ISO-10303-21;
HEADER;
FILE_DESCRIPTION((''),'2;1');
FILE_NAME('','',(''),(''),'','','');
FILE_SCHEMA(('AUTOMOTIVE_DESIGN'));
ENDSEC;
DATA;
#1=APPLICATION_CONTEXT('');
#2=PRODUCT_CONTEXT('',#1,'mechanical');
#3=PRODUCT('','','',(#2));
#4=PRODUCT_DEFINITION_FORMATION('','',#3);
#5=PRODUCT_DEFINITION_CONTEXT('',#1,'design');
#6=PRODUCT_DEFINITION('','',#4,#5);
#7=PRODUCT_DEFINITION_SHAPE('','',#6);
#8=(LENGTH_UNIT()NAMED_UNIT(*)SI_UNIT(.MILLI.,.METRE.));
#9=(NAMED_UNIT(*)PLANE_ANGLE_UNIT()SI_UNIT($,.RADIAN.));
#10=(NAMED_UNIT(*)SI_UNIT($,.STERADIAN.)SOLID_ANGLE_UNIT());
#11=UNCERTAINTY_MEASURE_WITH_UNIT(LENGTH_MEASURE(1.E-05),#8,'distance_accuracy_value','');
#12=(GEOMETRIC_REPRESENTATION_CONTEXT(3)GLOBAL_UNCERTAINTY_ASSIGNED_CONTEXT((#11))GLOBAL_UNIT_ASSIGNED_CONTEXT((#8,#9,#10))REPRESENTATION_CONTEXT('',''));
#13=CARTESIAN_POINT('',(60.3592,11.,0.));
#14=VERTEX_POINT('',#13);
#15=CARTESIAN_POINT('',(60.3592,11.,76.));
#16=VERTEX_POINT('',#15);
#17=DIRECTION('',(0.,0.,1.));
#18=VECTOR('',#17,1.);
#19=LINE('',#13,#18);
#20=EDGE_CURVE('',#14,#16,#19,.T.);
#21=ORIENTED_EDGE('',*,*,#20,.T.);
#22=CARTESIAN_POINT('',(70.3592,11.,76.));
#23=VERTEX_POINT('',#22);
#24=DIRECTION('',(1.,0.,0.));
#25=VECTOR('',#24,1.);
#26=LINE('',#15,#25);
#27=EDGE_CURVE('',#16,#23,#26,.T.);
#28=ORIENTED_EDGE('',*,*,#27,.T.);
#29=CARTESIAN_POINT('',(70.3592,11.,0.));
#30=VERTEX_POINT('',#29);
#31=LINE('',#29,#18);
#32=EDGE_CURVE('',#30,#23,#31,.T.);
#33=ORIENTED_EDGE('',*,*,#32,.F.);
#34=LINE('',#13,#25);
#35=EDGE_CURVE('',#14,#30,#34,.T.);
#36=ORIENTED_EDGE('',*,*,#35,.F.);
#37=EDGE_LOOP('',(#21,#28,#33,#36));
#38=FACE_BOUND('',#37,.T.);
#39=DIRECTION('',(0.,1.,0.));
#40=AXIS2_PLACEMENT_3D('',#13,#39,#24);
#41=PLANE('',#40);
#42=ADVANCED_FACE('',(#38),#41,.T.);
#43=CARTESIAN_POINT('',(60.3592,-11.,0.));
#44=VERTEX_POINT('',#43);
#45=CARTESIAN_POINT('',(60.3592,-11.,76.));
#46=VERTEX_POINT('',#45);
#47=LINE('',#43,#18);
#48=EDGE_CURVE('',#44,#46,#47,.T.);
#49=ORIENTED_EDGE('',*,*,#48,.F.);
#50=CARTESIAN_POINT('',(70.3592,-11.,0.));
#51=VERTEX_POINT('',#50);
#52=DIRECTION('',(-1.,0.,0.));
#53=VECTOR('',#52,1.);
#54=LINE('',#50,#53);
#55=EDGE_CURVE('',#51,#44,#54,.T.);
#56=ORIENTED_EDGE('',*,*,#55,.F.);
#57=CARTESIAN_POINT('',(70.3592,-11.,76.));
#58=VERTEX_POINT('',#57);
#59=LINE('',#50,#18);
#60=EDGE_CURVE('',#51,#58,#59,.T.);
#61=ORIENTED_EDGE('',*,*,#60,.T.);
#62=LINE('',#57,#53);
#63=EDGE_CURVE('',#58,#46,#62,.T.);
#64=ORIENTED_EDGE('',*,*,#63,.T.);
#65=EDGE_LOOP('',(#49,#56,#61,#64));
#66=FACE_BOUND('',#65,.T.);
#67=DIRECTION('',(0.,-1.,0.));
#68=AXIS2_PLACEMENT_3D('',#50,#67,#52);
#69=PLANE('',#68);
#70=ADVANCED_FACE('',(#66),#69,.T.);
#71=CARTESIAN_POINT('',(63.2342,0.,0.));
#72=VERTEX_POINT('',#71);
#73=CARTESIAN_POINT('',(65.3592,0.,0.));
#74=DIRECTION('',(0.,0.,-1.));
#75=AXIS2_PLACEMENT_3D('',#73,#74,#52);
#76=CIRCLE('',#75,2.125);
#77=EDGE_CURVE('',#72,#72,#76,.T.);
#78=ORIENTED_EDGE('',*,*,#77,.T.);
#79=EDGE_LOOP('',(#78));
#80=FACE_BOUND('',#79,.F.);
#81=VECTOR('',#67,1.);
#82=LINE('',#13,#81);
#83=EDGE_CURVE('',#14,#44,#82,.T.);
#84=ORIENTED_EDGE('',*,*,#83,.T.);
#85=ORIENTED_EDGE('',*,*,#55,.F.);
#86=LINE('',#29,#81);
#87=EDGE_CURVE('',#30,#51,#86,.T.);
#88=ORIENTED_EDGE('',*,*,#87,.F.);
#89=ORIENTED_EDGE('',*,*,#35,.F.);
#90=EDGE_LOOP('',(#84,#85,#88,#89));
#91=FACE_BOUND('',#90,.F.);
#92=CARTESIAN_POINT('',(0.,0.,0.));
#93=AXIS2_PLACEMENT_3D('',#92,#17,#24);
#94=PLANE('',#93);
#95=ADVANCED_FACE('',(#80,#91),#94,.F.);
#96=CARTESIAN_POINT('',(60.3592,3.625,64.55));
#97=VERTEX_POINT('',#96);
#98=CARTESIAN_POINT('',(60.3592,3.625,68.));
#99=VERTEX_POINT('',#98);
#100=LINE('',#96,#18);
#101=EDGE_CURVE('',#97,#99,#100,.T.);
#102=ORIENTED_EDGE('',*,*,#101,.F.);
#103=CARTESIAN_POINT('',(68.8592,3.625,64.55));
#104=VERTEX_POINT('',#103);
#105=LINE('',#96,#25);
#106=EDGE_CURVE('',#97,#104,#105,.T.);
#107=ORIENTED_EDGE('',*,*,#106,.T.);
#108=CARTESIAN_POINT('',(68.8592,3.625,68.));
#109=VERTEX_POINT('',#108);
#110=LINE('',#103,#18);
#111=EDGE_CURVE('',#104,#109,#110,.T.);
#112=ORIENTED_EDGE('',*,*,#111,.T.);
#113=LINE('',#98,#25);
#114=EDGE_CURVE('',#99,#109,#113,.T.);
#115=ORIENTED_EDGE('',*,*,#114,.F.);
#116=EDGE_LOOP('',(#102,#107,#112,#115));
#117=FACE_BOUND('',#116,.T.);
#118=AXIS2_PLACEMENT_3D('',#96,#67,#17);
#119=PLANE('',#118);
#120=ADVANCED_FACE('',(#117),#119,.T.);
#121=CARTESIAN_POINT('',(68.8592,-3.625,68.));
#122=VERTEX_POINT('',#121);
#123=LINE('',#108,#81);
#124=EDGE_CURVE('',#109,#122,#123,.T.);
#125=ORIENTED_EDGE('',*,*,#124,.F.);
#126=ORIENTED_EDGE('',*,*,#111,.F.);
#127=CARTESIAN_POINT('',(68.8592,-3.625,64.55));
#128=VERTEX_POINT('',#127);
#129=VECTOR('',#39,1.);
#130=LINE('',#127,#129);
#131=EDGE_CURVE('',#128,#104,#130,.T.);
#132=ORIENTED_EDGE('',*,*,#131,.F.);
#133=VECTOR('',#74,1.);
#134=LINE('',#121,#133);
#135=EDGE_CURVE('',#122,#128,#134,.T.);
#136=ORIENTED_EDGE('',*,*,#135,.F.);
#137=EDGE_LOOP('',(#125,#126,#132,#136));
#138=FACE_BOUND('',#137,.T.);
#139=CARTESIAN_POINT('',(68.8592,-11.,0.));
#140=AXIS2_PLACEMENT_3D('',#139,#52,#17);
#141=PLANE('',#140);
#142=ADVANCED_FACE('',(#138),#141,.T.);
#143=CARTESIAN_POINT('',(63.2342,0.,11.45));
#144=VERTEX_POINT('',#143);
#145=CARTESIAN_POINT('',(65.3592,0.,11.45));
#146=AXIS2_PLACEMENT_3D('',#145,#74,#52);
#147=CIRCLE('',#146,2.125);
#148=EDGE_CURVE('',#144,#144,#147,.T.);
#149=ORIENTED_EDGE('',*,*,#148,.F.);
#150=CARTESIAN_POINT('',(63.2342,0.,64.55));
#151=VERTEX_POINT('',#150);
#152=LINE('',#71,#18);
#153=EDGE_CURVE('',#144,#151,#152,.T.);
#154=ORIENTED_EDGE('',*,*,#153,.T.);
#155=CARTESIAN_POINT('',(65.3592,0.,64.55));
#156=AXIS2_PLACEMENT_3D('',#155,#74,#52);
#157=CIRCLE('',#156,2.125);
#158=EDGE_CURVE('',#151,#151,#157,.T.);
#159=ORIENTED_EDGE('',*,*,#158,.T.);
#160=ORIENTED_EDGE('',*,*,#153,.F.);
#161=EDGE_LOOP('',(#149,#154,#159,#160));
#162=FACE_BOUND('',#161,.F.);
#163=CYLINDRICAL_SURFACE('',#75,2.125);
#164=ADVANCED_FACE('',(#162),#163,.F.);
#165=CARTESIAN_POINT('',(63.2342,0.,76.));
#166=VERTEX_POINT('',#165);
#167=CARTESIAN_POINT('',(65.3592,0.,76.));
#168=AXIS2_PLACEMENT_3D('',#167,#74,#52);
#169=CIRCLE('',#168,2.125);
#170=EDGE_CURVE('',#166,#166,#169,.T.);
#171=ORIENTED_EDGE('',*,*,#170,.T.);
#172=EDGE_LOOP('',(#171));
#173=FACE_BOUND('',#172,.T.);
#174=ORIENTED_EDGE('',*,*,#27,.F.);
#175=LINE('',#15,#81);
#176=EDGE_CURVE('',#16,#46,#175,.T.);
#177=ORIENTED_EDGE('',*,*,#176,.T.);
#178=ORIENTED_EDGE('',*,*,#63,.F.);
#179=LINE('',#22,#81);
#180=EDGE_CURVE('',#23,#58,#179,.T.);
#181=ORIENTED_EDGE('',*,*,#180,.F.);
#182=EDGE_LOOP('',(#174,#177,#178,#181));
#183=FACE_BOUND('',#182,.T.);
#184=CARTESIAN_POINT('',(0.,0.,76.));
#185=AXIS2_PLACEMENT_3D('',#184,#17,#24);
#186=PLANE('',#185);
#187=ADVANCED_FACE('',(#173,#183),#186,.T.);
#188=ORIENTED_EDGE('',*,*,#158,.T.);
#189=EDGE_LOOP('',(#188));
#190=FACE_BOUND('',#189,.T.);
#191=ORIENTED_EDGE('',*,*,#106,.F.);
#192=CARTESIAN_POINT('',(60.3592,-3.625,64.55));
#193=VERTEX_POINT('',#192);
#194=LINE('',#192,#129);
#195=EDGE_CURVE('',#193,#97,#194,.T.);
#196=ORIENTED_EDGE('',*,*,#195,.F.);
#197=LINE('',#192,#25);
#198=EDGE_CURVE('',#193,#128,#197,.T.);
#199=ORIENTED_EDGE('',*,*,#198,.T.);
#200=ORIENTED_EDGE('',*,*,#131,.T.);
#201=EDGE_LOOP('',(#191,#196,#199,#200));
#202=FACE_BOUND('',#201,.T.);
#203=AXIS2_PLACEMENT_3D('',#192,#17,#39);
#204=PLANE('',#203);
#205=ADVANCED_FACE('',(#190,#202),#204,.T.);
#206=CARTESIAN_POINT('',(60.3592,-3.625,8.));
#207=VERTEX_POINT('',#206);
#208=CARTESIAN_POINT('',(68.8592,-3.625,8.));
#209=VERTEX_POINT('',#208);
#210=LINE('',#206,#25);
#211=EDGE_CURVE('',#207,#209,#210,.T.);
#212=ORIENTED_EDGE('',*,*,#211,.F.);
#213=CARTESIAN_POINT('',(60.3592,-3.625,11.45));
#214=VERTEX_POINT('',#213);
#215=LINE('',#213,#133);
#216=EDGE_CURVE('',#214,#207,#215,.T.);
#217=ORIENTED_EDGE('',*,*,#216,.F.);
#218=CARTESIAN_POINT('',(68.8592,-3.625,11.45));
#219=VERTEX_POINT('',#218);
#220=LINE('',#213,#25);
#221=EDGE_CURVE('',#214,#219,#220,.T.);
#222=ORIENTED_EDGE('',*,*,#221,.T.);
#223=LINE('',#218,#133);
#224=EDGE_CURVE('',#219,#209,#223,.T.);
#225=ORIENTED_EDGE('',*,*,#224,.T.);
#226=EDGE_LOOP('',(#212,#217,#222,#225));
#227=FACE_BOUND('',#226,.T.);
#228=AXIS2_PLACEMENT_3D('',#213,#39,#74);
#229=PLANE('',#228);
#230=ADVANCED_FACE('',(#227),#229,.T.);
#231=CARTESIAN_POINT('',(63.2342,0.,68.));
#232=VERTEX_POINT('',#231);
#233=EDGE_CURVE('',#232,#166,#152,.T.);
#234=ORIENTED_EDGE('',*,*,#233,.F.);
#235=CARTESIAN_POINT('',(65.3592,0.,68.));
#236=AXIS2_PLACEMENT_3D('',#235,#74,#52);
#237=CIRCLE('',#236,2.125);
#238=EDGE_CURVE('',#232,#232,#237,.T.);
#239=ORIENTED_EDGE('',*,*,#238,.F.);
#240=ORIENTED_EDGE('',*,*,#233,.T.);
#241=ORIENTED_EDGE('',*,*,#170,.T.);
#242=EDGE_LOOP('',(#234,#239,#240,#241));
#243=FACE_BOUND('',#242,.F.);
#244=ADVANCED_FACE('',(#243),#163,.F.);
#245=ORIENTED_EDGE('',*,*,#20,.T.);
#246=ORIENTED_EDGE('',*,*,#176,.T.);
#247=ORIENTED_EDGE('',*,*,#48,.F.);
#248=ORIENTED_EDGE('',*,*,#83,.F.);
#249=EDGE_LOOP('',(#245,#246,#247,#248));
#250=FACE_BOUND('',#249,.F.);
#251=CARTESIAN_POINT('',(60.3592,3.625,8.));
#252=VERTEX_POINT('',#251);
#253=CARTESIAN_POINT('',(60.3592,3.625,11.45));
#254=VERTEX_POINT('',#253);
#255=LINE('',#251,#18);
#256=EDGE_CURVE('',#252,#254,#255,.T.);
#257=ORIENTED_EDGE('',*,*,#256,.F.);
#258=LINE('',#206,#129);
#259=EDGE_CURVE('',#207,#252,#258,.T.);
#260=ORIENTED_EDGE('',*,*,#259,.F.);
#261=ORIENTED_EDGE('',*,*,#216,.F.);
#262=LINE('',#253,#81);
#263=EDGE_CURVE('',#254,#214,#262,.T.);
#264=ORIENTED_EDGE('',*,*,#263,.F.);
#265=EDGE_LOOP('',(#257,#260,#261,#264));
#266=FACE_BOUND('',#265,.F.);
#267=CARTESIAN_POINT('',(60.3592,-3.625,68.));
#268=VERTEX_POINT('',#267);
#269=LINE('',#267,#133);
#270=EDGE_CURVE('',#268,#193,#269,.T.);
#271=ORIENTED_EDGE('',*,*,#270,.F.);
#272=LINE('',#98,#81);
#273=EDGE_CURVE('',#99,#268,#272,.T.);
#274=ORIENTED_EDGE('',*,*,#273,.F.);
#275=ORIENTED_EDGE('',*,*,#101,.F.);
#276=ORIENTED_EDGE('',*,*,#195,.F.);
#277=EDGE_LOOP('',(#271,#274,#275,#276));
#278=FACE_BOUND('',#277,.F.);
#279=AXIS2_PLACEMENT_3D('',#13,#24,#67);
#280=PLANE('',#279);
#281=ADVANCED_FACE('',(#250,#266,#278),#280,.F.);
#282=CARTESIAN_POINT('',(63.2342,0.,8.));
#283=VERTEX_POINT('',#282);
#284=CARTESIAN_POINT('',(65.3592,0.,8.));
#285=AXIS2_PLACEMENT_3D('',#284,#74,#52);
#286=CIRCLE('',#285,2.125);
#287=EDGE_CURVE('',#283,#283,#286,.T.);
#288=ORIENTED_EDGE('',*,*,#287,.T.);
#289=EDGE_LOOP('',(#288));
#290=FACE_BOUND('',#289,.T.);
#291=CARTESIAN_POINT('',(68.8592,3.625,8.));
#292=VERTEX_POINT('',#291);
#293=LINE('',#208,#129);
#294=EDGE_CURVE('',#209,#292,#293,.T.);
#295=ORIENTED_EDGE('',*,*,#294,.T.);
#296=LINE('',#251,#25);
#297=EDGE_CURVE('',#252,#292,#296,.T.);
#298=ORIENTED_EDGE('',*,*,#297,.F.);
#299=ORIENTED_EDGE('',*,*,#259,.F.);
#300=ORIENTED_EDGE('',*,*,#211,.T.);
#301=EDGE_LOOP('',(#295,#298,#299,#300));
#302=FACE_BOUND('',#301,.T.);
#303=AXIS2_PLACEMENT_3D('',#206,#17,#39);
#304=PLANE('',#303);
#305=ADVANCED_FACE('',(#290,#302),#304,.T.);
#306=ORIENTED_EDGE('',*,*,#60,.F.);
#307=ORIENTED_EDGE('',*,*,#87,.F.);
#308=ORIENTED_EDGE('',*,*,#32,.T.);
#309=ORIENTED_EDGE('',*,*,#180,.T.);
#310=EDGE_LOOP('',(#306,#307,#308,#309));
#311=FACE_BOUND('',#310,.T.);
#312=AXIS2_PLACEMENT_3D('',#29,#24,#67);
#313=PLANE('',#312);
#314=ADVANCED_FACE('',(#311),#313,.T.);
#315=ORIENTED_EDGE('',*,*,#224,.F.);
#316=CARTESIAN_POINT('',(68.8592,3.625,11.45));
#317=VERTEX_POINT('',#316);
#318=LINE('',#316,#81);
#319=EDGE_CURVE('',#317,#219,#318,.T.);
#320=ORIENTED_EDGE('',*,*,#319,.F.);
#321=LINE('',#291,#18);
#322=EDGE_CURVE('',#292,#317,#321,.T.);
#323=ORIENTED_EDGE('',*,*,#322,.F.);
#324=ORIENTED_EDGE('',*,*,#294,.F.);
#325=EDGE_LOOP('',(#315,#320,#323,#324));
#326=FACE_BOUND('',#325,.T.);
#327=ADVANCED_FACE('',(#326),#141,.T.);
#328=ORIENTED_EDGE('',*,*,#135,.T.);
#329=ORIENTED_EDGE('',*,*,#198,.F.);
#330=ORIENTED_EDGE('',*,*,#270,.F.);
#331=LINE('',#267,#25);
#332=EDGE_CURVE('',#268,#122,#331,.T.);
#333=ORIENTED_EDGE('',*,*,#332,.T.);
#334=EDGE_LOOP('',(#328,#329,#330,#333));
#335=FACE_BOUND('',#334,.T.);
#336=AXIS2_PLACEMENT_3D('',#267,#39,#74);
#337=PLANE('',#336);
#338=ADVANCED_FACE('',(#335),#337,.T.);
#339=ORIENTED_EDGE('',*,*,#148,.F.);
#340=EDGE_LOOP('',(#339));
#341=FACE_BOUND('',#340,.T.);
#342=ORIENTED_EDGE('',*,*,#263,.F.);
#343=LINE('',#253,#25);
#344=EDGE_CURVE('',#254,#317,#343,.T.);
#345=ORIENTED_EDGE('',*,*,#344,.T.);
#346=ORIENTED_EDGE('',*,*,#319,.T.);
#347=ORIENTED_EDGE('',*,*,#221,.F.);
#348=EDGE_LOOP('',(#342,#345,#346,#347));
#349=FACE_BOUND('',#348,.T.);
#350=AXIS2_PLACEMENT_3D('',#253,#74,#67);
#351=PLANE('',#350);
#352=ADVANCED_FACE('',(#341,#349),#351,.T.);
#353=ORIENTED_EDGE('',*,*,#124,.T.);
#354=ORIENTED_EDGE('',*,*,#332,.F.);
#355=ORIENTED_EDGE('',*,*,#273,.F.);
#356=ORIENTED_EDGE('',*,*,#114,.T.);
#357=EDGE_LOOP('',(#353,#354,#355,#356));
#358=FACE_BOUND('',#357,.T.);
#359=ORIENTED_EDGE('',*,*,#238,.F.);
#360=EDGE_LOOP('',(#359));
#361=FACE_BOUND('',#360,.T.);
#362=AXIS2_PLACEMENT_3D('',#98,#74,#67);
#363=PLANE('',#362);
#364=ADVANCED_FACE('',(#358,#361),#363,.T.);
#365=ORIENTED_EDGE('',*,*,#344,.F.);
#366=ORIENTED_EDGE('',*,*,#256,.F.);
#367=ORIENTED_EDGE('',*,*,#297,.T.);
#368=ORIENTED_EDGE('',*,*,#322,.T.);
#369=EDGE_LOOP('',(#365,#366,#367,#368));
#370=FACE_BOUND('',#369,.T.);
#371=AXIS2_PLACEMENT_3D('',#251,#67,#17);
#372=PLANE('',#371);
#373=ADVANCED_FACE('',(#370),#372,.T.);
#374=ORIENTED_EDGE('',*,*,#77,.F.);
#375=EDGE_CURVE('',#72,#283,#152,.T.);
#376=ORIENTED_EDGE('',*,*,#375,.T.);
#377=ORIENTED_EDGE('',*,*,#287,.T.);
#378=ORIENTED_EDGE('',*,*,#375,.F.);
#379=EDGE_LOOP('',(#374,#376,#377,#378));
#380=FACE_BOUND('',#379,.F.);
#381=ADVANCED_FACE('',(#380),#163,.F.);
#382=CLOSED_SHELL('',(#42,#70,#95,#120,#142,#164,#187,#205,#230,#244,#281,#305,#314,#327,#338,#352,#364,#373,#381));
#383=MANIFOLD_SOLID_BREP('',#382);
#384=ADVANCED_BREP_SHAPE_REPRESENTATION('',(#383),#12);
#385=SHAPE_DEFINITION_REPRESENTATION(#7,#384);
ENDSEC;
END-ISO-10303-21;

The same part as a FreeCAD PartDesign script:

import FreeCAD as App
import Part
import Sketcher
Q = App.Units.Quantity


def add_polygon(sketch, points):
    """Adds a closed chain of lines whose ends are joined by coincident constraints."""
    first, n = sketch.GeometryCount, len(points)
    for a, b in zip(points, points[1:] + points[:1]):
        sketch.addGeometry(Part.LineSegment(App.Vector(*a, 0), App.Vector(*b, 0)), False)
    for i in range(n):
        sketch.addConstraint(Sketcher.Constraint("Coincident", first + i, 2, first + (i + 1) % n, 1))

doc = App.newDocument("Part")
body = doc.addObject("PartDesign::Body", "Body")

# Sketch on XY plane
sketch1 = doc.addObject("Sketcher::SketchObject", "Sketch")
body.addObject(sketch1)
sketch1.AttachmentSupport = (doc.XY_Plane, [""])
sketch1.MapMode = "FlatFace"
add_polygon(sketch1, [(70.3592, 11), (60.3592, 11), (60.3592, -11), (70.3592, -11)])  # lines 0-3
sketch1.addConstraint([
    Sketcher.Constraint("Horizontal", 0),
    Sketcher.Constraint("Vertical", 1),
    Sketcher.Constraint("Horizontal", 2),
    Sketcher.Constraint("Vertical", 3),
    Sketcher.Constraint("DistanceX", 0, 2, 0, 1, Q("10 mm")),
    Sketcher.Constraint("DistanceY", 1, 2, 1, 1, Q("22 mm")),
    Sketcher.Constraint("DistanceY", -1, 1, 0, 2, Q("11 mm")),
    Sketcher.Constraint("DistanceX", -1, 1, 0, 2, Q("60.3592 mm")),
])
pad1 = doc.addObject("PartDesign::Pad", "Pad")
body.addObject(pad1)
pad1.Profile = sketch1
pad1.Length = 76

# Sketch on XY plane
sketch2 = doc.addObject("Sketcher::SketchObject", "Sketch001")
body.addObject(sketch2)
sketch2.AttachmentSupport = (doc.XY_Plane, [""])
sketch2.MapMode = "FlatFace"
sketch2.addGeometry(Part.Circle(App.Vector(65.3592, 0, 0), App.Vector(0, 0, 1), 2.125), False)
sketch2.addConstraint([
    Sketcher.Constraint("PointOnObject", 0, 3, -1),
    Sketcher.Constraint("Diameter", 0, Q("4.25 mm")),
    Sketcher.Constraint("DistanceX", -1, 1, 0, 3, Q("65.3592 mm")),
])
pocket1 = doc.addObject("PartDesign::Pocket", "Pocket")
body.addObject(pocket1)
pocket1.Profile = sketch2
pocket1.Type = "ThroughAll"
pocket1.Reversed = True

# Sketch on YZ plane
sketch3 = doc.addObject("Sketcher::SketchObject", "Sketch002")
body.addObject(sketch3)
sketch3.AttachmentSupport = (doc.YZ_Plane, [""])
sketch3.MapMode = "FlatFace"
sketch3.AttachmentOffset = App.Placement(App.Vector(0, 0, 60.3592), App.Rotation())
add_polygon(sketch3, [(-3.625, 64.55), (-3.625, 68), (3.625, 68), (3.625, 64.55)])  # lines 0-3
add_polygon(sketch3, [(-3.625, 8), (-3.625, 11.45), (3.625, 11.45), (3.625, 8)])  # lines 4-7
sketch3.addConstraint([
    Sketcher.Constraint("Vertical", 0),
    Sketcher.Constraint("Horizontal", 1),
    Sketcher.Constraint("Vertical", 2),
    Sketcher.Constraint("Horizontal", 3),
    Sketcher.Constraint("Vertical", 4),
    Sketcher.Constraint("Horizontal", 5),
    Sketcher.Constraint("Vertical", 6),
    Sketcher.Constraint("Horizontal", 7),
    Sketcher.Constraint("Vertical", 3, 2, 4, 2),
    Sketcher.Constraint("Vertical", 2, 2, 5, 2),
    Sketcher.Constraint("Equal", 2, 4),
    Sketcher.Constraint("DistanceY", -1, 1, 6, 2, Q("8 mm")),
    Sketcher.Constraint("DistanceX", 1, 1, 1, 2, Q("7.25 mm")),
    Sketcher.Constraint("DistanceY", 0, 1, 0, 2, Q("3.45 mm")),
    Sketcher.Constraint("DistanceY", -1, 1, 0, 2, Q("68 mm")),
    Sketcher.Constraint("DistanceX", 0, 2, -1, 1, Q("3.625 mm")),
])
pocket2 = doc.addObject("PartDesign::Pocket", "Pocket001")
body.addObject(pocket2)
pocket2.Profile = sketch3
pocket2.Length = 8.5
pocket2.Reversed = True

doc.recompute()
